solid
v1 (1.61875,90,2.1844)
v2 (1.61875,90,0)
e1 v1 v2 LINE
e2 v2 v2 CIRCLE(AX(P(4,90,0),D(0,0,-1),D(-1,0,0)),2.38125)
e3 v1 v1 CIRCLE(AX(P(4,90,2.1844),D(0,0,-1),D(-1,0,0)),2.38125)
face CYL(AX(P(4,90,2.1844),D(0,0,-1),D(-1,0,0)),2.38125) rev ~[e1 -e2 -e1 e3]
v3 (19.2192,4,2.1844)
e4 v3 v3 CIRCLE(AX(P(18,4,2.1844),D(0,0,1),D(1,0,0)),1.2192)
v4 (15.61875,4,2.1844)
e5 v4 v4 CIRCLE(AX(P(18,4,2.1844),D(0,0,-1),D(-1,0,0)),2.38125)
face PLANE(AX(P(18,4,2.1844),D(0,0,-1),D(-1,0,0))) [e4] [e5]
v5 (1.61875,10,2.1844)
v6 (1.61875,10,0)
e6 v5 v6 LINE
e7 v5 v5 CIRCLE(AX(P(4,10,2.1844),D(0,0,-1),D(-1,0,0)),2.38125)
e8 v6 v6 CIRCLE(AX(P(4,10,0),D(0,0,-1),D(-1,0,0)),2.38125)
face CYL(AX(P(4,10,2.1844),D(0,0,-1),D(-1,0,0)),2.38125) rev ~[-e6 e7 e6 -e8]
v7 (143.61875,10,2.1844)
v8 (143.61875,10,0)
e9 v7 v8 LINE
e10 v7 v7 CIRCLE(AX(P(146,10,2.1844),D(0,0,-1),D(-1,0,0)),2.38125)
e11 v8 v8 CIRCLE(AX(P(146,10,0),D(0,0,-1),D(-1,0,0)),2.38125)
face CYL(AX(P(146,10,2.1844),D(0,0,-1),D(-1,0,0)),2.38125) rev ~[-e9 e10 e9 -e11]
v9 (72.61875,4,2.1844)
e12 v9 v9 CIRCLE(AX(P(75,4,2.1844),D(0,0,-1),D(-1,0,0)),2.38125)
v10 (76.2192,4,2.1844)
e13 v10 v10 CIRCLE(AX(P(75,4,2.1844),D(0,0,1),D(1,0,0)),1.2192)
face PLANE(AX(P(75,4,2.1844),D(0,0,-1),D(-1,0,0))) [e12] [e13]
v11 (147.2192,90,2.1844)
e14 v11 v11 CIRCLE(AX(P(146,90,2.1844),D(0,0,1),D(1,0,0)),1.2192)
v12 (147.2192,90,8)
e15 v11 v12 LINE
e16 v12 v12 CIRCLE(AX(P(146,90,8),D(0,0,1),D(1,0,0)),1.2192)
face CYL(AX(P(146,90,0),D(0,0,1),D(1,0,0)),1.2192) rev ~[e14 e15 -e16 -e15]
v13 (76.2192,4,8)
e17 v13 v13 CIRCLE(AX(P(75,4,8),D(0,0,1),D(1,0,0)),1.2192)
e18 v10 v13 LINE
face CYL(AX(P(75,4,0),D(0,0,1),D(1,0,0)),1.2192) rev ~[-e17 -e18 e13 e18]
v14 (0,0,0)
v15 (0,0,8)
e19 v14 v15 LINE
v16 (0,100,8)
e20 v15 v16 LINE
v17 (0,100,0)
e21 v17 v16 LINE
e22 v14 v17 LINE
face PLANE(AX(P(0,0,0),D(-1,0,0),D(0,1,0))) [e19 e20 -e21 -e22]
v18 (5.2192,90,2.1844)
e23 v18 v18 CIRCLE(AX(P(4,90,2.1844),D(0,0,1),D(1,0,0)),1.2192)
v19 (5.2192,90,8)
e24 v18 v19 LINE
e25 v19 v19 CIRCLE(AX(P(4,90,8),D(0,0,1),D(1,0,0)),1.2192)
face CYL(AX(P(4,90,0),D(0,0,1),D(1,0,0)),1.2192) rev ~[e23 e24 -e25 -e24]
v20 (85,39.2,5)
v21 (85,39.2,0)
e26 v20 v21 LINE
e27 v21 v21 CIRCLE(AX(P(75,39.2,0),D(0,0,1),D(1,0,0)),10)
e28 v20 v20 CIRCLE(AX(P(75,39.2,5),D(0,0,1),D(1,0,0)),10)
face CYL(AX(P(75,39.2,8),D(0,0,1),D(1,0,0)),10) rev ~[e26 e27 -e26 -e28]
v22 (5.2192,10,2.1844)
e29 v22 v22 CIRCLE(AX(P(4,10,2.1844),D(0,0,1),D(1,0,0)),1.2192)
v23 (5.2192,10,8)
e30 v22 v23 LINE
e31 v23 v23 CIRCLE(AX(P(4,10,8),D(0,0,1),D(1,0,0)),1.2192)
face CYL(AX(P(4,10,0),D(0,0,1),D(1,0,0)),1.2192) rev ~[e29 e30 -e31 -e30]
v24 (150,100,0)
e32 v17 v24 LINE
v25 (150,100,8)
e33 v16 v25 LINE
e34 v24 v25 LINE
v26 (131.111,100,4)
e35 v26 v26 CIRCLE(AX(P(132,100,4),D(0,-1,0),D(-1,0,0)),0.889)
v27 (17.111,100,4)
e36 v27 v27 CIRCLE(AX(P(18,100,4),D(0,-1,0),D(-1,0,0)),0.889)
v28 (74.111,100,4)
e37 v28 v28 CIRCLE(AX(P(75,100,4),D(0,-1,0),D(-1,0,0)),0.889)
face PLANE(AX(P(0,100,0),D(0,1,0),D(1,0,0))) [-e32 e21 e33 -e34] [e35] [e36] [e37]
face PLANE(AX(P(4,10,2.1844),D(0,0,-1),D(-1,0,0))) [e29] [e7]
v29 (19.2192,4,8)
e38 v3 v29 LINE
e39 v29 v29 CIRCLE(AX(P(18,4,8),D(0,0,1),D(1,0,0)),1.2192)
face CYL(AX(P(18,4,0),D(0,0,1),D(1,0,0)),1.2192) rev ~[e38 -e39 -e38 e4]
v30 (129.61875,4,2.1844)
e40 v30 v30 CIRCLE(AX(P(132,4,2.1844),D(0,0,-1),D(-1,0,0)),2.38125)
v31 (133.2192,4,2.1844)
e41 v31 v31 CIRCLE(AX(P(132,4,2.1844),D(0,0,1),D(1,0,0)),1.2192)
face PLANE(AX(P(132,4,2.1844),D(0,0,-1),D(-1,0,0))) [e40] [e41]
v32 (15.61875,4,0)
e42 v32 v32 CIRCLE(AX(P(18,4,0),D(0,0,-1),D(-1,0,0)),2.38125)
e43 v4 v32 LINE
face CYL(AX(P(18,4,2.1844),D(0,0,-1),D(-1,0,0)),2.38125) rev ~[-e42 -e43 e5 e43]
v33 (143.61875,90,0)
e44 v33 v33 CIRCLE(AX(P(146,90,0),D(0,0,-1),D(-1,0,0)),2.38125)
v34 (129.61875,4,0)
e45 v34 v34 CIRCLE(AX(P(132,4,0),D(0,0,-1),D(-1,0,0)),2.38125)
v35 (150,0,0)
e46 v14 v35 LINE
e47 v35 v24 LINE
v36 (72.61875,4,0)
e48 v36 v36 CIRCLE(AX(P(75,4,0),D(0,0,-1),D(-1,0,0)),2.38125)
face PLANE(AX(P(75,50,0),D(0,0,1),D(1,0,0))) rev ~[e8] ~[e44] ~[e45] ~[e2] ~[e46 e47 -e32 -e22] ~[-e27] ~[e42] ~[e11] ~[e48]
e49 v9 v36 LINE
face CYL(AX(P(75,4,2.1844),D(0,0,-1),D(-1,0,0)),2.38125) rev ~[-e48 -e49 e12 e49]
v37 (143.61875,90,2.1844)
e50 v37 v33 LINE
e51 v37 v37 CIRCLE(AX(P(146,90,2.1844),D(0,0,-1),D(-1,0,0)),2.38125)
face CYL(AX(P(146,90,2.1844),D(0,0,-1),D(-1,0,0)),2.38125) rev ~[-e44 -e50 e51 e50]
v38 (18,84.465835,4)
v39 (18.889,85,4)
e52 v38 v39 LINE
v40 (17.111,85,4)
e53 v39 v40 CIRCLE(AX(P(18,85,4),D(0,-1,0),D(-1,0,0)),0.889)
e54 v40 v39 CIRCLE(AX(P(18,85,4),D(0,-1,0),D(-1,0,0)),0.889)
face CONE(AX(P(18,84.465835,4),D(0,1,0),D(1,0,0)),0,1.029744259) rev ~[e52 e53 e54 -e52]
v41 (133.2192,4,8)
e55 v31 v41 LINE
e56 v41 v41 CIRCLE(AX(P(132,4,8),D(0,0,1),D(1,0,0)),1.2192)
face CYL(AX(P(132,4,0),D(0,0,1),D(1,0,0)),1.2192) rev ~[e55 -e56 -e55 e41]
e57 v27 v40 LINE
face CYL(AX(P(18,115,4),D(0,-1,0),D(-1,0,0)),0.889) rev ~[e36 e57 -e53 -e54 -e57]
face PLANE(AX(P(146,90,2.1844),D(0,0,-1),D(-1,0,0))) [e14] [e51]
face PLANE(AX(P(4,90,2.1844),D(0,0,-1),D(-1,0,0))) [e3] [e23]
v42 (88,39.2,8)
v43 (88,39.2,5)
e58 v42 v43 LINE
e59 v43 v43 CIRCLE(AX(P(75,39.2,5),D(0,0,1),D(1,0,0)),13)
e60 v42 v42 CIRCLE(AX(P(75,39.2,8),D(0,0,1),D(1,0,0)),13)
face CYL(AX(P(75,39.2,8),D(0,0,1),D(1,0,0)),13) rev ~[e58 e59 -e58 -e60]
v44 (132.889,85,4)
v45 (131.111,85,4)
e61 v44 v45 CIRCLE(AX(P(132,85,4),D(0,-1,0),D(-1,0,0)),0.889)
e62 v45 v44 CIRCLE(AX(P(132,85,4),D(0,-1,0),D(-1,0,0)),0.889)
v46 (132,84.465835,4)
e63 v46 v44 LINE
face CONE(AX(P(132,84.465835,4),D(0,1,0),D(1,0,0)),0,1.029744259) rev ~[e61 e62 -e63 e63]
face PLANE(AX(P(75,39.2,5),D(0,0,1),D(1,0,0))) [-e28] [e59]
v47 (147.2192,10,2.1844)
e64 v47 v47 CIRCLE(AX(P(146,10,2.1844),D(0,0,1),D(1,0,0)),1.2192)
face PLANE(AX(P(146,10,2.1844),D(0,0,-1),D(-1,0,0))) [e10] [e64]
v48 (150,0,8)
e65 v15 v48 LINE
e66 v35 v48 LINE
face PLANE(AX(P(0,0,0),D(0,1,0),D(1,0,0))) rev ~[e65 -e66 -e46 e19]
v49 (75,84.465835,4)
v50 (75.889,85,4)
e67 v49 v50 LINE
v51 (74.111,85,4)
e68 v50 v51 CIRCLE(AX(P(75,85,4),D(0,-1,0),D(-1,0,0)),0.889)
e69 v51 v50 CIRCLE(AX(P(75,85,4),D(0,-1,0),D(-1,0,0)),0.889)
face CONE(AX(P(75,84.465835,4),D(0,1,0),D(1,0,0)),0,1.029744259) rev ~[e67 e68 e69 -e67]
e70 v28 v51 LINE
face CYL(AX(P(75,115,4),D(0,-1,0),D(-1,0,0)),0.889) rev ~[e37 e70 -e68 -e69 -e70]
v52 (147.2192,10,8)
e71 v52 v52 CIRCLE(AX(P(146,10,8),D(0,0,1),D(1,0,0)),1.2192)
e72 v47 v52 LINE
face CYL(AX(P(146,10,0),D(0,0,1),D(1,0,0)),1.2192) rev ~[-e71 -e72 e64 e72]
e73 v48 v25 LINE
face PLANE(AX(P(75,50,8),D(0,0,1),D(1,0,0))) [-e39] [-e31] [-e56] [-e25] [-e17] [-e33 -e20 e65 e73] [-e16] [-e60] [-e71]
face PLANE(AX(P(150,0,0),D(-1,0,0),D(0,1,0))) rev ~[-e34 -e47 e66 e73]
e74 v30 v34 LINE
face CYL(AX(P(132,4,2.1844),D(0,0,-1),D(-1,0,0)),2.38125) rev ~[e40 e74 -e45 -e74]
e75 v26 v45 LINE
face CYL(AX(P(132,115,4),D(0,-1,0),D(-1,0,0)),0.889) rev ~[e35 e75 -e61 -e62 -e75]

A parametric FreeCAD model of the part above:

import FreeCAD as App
import Part
import Sketcher
Q = App.Units.Quantity


def add_polygon(sketch, points):
    """Adds a closed chain of lines whose ends are joined by coincident constraints."""
    first, n = sketch.GeometryCount, len(points)
    for a, b in zip(points, points[1:] + points[:1]):
        sketch.addGeometry(Part.LineSegment(App.Vector(*a, 0), App.Vector(*b, 0)), False)
    for i in range(n):
        sketch.addConstraint(Sketcher.Constraint("Coincident", first + i, 2, first + (i + 1) % n, 1))

doc = App.newDocument("Part")
body = doc.addObject("PartDesign::Body", "Body")

# Sketch on XY plane
sketch1 = body.newObject("Sketcher::SketchObject", "Sketch")
sketch1.AttachmentSupport = (doc.getObject("XY_Plane"), [""])
sketch1.MapMode = "FlatFace"
add_polygon(sketch1, [(0, 100), (0, 0), (150, 0), (150, 100)])  # lines 0-3
sketch1.addConstraint([
    Sketcher.Constraint("Vertical", 0),
    Sketcher.Constraint("Horizontal", 1),
    Sketcher.Constraint("Vertical", 2),
    Sketcher.Constraint("Horizontal", 3),
    Sketcher.Constraint("Coincident", 0, 2, -1, 1),
    Sketcher.Constraint("DistanceX", 1, 1, 1, 2, Q("150 mm")),
    Sketcher.Constraint("DistanceY", 0, 2, 0, 1, Q("100 mm")),
])
pad1 = body.newObject("PartDesign::Pad", "Pad")
pad1.Profile = sketch1
pad1.Length = 8

# Sketch on XY plane
sketch2 = body.newObject("Sketcher::SketchObject", "Sketch001")
sketch2.AttachmentSupport = (doc.getObject("XY_Plane"), [""])
sketch2.MapMode = "FlatFace"
sketch2.addGeometry([
    Part.Circle(App.Vector(132, 4, 0), App.Vector(0, 0, 1), 1.2),  # 0
    Part.Circle(App.Vector(18, 4, 0), App.Vector(0, 0, 1), 1.2),  # 1
    Part.Circle(App.Vector(4, 90, 0), App.Vector(0, 0, 1), 1.2),  # 2
    Part.Circle(App.Vector(146, 90, 0), App.Vector(0, 0, 1), 1.2),  # 3
    Part.Circle(App.Vector(146, 10, 0), App.Vector(0, 0, 1), 1.2),  # 4
    Part.Circle(App.Vector(4, 10, 0), App.Vector(0, 0, 1), 1.2),  # 5
    Part.Circle(App.Vector(75, 4, 0), App.Vector(0, 0, 1), 1.2),  # 6
], False)
sketch2.addConstraint([
    Sketcher.Constraint("Equal", 0, 1),
    Sketcher.Constraint("Equal", 1, 2),
    Sketcher.Constraint("Equal", 2, 3),
    Sketcher.Constraint("Equal", 3, 4),
    Sketcher.Constraint("Equal", 4, 5),
    Sketcher.Constraint("Equal", 5, 6),
    Sketcher.Constraint("Horizontal", 0, 3, 1, 3),
    Sketcher.Constraint("Horizontal", 2, 3, 3, 3),
    Sketcher.Constraint("Horizontal", 4, 3, 5, 3),
    Sketcher.Constraint("Horizontal", 1, 3, 6, 3),
    Sketcher.Constraint("Vertical", 3, 3, 4, 3),
    Sketcher.Constraint("Vertical", 2, 3, 5, 3),
    Sketcher.Constraint("DistanceX", -1, 1, 0, 3, Q("132 mm")),
    Sketcher.Constraint("DistanceY", -1, 1, 0, 3, Q("4 mm")),
    Sketcher.Constraint("DistanceX", -1, 1, 1, 3, Q("18 mm")),
    Sketcher.Constraint("DistanceX", -1, 1, 2, 3, Q("4 mm")),
    Sketcher.Constraint("DistanceY", -1, 1, 2, 3, Q("90 mm")),
    Sketcher.Constraint("DistanceX", -1, 1, 3, 3, Q("146 mm")),
    Sketcher.Constraint("DistanceY", -1, 1, 4, 3, Q("10 mm")),
    Sketcher.Constraint("DistanceX", -1, 1, 6, 3, Q("75 mm")),
    Sketcher.Constraint("Diameter", 0, Q("2.4384 mm")),
])
doc.recompute()
hole = body.newObject("PartDesign::Hole", "Hole")
hole.Profile = sketch2
hole.ThreadType = "None"
hole.Diameter = 2.4384
hole.DepthType = "ThroughAll"
hole.HoleCutType = "Counterbore"
hole.HoleCutDiameter = 4.7625
hole.HoleCutDepth = 2.1844
hole.Reversed = True

# Sketch on XY plane
sketch3 = body.newObject("Sketcher::SketchObject", "Sketch002")
sketch3.AttachmentSupport = (doc.getObject("XY_Plane"), [""])
sketch3.MapMode = "FlatFace"
sketch3.AttachmentOffset = App.Placement(App.Vector(0, 0, 8), App.Rotation())
sketch3.addGeometry(Part.Circle(App.Vector(75, 39, 0), App.Vector(0, 0, 1), 10), False)
sketch3.addConstraint([
    Sketcher.Constraint("Diameter", 0, Q("20 mm")),
    Sketcher.Constraint("DistanceX", -1, 1, 0, 3, Q("75 mm")),
    Sketcher.Constraint("DistanceY", -1, 1, 0, 3, Q("39.2 mm")),
])
pocket1 = body.newObject("PartDesign::Pocket", "Pocket")
pocket1.Profile = sketch3
pocket1.Type = "ThroughAll"

# Sketch on XY plane
sketch4 = body.newObject("Sketcher::SketchObject", "Sketch003")
sketch4.AttachmentSupport = (doc.getObject("XY_Plane"), [""])
sketch4.MapMode = "FlatFace"
sketch4.AttachmentOffset = App.Placement(App.Vector(0, 0, 8), App.Rotation())
sketch4.addGeometry(Part.Circle(App.Vector(75, 39, 0), App.Vector(0, 0, 1), 13), False)
sketch4.addConstraint([
    Sketcher.Constraint("Diameter", 0, Q("26 mm")),
    Sketcher.Constraint("DistanceX", -1, 1, 0, 3, Q("75 mm")),
    Sketcher.Constraint("DistanceY", -1, 1, 0, 3, Q("39.2 mm")),
])
pocket2 = body.newObject("PartDesign::Pocket", "Pocket001")
pocket2.Profile = sketch4
pocket2.Length = 3

# Sketch on XZ plane
sketch5 = body.newObject("Sketcher::SketchObject", "Sketch004")
sketch5.AttachmentSupport = (doc.getObject("XZ_Plane"), [""])
sketch5.MapMode = "FlatFace"
sketch5.AttachmentOffset = App.Placement(App.Vector(0, 0, -100), App.Rotation())
sketch5.addGeometry([
    Part.Circle(App.Vector(18, 4, 0), App.Vector(0, 0, 1), 0.9),
    Part.Circle(App.Vector(75, 4, 0), App.Vector(0, 0, 1), 0.9),
    Part.Circle(App.Vector(132, 4, 0), App.Vector(0, 0, 1), 0.9),
], False)
sketch5.addConstraint([
    Sketcher.Constraint("Equal", 0, 1),
    Sketcher.Constraint("Equal", 1, 2),
    Sketcher.Constraint("Horizontal", 0, 3, 1, 3),
    Sketcher.Constraint("Horizontal", 1, 3, 2, 3),
    Sketcher.Constraint("Diameter", 0, Q("1.778 mm")),
    Sketcher.Constraint("DistanceX", -1, 1, 0, 3, Q("18 mm")),
    Sketcher.Constraint("DistanceY", -1, 1, 0, 3, Q("4 mm")),
    Sketcher.Constraint("DistanceX", -1, 1, 1, 3, Q("75 mm")),
    Sketcher.Constraint("DistanceX", -1, 1, 2, 3, Q("132 mm")),
])
doc.recompute()
hole2 = body.newObject("PartDesign::Hole", "Hole001")
hole2.Profile = sketch5
hole2.ThreadType = "None"
hole2.Diameter = 1.778
hole2.DepthType = "Dimension"
hole2.Depth = 15
hole2.DrillPoint = "Angled"
hole2.DrillPointAngle = 118
hole2.Reversed = True

doc.recompute()
